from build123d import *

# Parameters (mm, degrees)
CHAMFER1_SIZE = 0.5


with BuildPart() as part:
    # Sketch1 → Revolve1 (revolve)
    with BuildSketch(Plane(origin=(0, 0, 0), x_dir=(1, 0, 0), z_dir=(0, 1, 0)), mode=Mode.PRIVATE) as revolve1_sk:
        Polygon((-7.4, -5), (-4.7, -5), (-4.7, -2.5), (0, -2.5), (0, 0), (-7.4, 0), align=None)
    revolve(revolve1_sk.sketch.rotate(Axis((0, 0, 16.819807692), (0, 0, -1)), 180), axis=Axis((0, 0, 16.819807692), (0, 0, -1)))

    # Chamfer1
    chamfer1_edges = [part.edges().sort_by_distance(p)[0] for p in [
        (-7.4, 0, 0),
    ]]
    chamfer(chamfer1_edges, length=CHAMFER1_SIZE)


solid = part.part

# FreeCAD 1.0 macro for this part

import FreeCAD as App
import Part
import Sketcher

V = App.Vector


def edges_at(feature, points):
    """Names of the edges that pass closest to the given points."""
    edges = feature.Shape.Edges
    near = lambda p: min(range(len(edges)), key=lambda i: edges[i].distToShape(Part.Vertex(*p))[0])
    return sorted({f"Edge{near(p) + 1}" for p in points})

doc = App.newDocument("Part")
params = doc.addObject("Spreadsheet::Sheet", "Params")
for row, (alias, value) in enumerate([
    ("sketch1_height", "5 mm"),
    ("sketch1_width", "2.7 mm"),
    ("sketch1_width2", "4.7 mm"),
    ("revolution_angle", "360 deg"),
    ("chamfer_size", "0.5 mm"),
], start=1):
    params.set(f"A{row}", alias)
    params.set(f"B{row}", "=" + value)
    params.setAlias(f"B{row}", alias)

body = doc.addObject("PartDesign::Body", "Body")

sketch1 = body.newObject("Sketcher::SketchObject", "Sketch")
sketch1.AttachmentSupport = (doc.getObject("XZ_Plane"), [""])
sketch1.MapMode = "FlatFace"
sketch1.addGeometry([
    Part.LineSegment(V(-7.4, 5, 0), V(-4.7, 5, 0)),
    Part.LineSegment(V(-4.7, 5, 0), V(-4.7, 2.5, 0)),
    Part.LineSegment(V(-4.7, 2.5, 0), V(0, 2.5, 0)),
    Part.LineSegment(V(0, 2.5, 0), V(0, 0, 0)),
    Part.LineSegment(V(0, 0, 0), V(-7.4, 0, 0)),
    Part.LineSegment(V(-7.4, 0, 0), V(-7.4, 5, 0)),
], False)
sketch1.addConstraint([
    Sketcher.Constraint("Coincident", 0, 2, 1, 1),
    Sketcher.Constraint("Coincident", 1, 2, 2, 1),
    Sketcher.Constraint("Coincident", 2, 2, 3, 1),
    Sketcher.Constraint("Coincident", 3, 2, 4, 1),
    Sketcher.Constraint("Coincident", 4, 2, 5, 1),
    Sketcher.Constraint("Coincident", 5, 2, 0, 1),
    Sketcher.Constraint("Horizontal", 0),
    Sketcher.Constraint("Vertical", 1),
    Sketcher.Constraint("Horizontal", 2),
    Sketcher.Constraint("Vertical", 3),
    Sketcher.Constraint("Horizontal", 4),
    Sketcher.Constraint("Vertical", 5),
    Sketcher.Constraint("Coincident", 3, 2, -1, 1),
    Sketcher.Constraint("Equal", 1, 3),
    Sketcher.Constraint("DistanceY", 5, 1, 5, 2, 5.0),
    Sketcher.Constraint("DistanceX", 0, 1, 0, 2, 2.7),
    Sketcher.Constraint("DistanceX", 2, 1, 2, 2, 4.7),
])
sketch1.setExpression("Constraints[14]", "Params.sketch1_height")
sketch1.setExpression("Constraints[15]", "Params.sketch1_width")
sketch1.setExpression("Constraints[16]", "Params.sketch1_width2")
revolution = body.newObject("PartDesign::Revolution", "Revolution")
revolution.Profile = sketch1
revolution.ReferenceAxis = (sketch1, ["V_Axis"])
revolution.setExpression("Angle", "Params.revolution_angle")
doc.recompute()

chamfer = body.newObject("PartDesign::Chamfer", "Chamfer")
chamfer.Base = (revolution, edges_at(revolution, [(-7.4, 0, 0)]))
chamfer.setExpression("Size", "Params.chamfer_size")

doc.recompute()
